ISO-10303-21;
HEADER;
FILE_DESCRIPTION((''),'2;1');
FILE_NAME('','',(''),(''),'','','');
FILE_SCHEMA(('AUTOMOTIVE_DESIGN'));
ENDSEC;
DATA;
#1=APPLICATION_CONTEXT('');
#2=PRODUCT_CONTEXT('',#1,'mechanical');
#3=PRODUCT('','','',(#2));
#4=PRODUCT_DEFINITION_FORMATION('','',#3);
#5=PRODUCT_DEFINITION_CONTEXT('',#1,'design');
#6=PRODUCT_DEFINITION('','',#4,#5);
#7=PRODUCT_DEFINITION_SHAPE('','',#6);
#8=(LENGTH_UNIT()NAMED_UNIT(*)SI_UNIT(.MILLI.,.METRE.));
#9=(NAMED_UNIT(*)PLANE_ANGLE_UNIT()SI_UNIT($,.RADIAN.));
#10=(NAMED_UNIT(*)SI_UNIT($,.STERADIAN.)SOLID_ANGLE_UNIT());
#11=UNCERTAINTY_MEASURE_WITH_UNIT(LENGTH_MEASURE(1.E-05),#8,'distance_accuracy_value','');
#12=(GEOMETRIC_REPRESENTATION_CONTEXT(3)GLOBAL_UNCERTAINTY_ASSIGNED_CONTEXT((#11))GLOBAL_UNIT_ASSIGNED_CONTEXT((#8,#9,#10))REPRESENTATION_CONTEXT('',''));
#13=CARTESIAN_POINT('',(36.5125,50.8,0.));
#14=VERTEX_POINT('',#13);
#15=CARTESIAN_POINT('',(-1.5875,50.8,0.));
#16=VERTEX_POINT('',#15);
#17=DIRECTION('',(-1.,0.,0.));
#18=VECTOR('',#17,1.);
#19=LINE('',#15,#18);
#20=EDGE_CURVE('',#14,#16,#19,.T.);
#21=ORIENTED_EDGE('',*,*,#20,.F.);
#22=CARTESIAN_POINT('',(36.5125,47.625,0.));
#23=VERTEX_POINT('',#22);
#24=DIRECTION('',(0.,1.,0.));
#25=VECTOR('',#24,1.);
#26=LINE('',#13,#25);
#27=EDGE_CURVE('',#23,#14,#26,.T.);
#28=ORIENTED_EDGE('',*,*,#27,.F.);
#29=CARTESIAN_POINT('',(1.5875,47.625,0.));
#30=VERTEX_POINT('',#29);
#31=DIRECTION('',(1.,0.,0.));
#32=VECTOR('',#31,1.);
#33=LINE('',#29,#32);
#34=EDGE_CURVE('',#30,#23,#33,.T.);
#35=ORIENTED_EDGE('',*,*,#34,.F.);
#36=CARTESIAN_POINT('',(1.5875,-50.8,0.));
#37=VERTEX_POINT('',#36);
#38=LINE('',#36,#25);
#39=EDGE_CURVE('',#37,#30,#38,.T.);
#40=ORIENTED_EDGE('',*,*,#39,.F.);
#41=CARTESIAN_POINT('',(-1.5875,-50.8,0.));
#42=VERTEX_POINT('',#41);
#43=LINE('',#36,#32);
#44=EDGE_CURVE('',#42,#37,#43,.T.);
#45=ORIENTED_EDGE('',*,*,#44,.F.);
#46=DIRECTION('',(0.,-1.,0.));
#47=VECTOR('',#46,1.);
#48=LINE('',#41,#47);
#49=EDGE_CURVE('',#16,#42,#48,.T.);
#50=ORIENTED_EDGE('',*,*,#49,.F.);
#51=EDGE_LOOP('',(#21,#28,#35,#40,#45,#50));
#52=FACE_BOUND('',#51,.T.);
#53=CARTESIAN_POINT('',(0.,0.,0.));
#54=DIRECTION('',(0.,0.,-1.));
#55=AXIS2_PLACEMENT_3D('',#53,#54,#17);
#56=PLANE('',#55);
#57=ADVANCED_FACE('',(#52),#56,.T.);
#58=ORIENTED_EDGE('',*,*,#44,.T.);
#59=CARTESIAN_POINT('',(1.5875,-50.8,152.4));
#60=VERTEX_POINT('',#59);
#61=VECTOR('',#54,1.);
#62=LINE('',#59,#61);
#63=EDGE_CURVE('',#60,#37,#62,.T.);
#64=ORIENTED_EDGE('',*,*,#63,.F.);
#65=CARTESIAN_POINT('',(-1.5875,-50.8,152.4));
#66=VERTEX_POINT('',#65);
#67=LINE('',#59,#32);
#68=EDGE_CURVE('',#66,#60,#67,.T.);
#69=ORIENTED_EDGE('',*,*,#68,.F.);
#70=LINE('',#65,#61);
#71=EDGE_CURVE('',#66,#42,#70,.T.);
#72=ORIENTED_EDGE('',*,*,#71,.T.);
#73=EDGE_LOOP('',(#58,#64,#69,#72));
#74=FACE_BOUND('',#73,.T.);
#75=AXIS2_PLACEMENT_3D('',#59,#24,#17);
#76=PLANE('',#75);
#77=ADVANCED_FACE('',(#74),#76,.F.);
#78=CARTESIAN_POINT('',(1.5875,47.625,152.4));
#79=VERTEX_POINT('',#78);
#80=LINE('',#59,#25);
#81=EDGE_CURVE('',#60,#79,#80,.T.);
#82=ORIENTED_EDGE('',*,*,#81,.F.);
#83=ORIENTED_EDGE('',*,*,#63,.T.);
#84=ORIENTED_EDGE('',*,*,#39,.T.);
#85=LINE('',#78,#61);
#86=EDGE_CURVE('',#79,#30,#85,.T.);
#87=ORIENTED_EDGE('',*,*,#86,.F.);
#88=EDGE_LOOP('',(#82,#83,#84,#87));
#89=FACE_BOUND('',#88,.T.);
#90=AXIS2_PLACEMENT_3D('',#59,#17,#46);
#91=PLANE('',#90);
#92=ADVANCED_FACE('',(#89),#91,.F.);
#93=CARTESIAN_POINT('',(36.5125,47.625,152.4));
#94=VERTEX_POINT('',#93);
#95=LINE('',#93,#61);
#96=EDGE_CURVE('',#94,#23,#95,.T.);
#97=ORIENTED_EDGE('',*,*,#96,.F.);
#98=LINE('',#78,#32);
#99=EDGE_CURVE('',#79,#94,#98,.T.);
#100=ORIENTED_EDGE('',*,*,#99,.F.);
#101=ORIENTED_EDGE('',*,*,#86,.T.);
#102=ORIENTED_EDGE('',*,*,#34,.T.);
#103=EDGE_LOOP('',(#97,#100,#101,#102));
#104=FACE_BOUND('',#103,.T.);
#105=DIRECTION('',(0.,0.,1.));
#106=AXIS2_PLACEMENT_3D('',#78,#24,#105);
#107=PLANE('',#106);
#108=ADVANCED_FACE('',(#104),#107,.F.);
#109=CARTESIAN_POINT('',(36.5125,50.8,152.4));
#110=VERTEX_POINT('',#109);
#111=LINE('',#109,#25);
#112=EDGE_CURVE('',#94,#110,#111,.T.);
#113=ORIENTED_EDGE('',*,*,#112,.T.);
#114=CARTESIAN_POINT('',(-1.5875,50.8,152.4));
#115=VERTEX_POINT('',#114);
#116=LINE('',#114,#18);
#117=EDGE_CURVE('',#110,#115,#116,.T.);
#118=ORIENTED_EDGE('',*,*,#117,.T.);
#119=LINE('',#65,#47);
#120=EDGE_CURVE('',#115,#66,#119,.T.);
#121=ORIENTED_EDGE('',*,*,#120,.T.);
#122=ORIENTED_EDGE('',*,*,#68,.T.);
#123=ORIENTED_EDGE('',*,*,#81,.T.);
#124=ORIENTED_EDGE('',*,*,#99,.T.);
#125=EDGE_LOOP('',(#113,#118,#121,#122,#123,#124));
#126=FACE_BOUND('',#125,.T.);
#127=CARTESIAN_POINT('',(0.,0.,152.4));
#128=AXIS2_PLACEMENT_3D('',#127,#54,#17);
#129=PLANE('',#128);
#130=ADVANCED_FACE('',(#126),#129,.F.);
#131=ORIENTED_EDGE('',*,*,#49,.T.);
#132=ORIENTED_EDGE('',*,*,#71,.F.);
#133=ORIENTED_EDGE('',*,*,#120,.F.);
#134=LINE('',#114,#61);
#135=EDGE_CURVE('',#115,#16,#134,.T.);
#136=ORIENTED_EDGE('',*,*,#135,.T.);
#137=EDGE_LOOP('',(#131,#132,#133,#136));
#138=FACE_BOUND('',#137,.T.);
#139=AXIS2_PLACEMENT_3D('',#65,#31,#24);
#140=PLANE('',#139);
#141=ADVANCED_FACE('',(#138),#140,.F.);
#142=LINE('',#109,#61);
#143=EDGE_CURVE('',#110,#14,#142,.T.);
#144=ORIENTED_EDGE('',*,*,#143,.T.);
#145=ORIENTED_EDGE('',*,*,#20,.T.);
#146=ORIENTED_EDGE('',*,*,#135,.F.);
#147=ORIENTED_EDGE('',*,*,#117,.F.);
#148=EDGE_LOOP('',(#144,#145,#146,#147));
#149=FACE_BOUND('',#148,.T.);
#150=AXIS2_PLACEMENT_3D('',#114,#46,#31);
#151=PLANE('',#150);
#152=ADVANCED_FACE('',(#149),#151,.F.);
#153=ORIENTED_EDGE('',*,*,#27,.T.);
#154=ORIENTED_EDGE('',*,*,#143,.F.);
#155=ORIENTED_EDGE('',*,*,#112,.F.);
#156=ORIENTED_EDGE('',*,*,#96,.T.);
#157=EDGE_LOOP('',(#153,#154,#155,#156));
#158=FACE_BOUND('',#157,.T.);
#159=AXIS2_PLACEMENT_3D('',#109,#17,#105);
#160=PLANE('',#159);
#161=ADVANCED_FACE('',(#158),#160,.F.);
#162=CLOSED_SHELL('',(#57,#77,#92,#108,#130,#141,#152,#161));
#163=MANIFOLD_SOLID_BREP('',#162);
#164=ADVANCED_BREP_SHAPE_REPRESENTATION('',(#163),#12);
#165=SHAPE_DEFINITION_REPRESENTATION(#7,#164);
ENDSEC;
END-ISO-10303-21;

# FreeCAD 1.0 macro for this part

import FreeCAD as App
import Part
import Sketcher
Q = App.Units.Quantity


def add_polygon(sketch, points):
    """Adds a closed chain of lines whose ends are joined by coincident constraints."""
    first, n = sketch.GeometryCount, len(points)
    for a, b in zip(points, points[1:] + points[:1]):
        sketch.addGeometry(Part.LineSegment(App.Vector(*a, 0), App.Vector(*b, 0)), False)
    for i in range(n):
        sketch.addConstraint(Sketcher.Constraint("Coincident", first + i, 2, first + (i + 1) % n, 1))

doc = App.newDocument("Part")
body = doc.addObject("PartDesign::Body", "Body")

# Sketch on XY plane
sketch1 = body.newObject("Sketcher::SketchObject", "Sketch")
sketch1.AttachmentSupport = (doc.getObject("XY_Plane"), [""])
sketch1.MapMode = "FlatFace"
add_polygon(sketch1, [(1.6, 47.6), (36.5, 47.6), (36.5, 50.8), (-1.6, 50.8), (-1.6, -50.8), (1.6, -50.8)])  # lines 0-5
sketch1.addConstraint([
    Sketcher.Constraint("Horizontal", 0),
    Sketcher.Constraint("Vertical", 1),
    Sketcher.Constraint("Horizontal", 2),
    Sketcher.Constraint("Vertical", 3),
    Sketcher.Constraint("Horizontal", 4),
    Sketcher.Constraint("Vertical", 5),
    Sketcher.Constraint("Symmetric", 2, 2, 4, 2, -1, 1),
    Sketcher.Constraint("Equal", 4, 1),
    Sketcher.Constraint("DistanceY", 3, 2, 3, 1, Q("4 in")),
    Sketcher.Constraint("DistanceX", 2, 2, 2, 1, Q("1.5 in")),
    Sketcher.Constraint("DistanceX", 0, 1, 0, 2, Q("1.375 in")),
])
pad1 = body.newObject("PartDesign::Pad", "Pad")
pad1.Profile = sketch1
pad1.Length = Q("6 in")

doc.recompute()
